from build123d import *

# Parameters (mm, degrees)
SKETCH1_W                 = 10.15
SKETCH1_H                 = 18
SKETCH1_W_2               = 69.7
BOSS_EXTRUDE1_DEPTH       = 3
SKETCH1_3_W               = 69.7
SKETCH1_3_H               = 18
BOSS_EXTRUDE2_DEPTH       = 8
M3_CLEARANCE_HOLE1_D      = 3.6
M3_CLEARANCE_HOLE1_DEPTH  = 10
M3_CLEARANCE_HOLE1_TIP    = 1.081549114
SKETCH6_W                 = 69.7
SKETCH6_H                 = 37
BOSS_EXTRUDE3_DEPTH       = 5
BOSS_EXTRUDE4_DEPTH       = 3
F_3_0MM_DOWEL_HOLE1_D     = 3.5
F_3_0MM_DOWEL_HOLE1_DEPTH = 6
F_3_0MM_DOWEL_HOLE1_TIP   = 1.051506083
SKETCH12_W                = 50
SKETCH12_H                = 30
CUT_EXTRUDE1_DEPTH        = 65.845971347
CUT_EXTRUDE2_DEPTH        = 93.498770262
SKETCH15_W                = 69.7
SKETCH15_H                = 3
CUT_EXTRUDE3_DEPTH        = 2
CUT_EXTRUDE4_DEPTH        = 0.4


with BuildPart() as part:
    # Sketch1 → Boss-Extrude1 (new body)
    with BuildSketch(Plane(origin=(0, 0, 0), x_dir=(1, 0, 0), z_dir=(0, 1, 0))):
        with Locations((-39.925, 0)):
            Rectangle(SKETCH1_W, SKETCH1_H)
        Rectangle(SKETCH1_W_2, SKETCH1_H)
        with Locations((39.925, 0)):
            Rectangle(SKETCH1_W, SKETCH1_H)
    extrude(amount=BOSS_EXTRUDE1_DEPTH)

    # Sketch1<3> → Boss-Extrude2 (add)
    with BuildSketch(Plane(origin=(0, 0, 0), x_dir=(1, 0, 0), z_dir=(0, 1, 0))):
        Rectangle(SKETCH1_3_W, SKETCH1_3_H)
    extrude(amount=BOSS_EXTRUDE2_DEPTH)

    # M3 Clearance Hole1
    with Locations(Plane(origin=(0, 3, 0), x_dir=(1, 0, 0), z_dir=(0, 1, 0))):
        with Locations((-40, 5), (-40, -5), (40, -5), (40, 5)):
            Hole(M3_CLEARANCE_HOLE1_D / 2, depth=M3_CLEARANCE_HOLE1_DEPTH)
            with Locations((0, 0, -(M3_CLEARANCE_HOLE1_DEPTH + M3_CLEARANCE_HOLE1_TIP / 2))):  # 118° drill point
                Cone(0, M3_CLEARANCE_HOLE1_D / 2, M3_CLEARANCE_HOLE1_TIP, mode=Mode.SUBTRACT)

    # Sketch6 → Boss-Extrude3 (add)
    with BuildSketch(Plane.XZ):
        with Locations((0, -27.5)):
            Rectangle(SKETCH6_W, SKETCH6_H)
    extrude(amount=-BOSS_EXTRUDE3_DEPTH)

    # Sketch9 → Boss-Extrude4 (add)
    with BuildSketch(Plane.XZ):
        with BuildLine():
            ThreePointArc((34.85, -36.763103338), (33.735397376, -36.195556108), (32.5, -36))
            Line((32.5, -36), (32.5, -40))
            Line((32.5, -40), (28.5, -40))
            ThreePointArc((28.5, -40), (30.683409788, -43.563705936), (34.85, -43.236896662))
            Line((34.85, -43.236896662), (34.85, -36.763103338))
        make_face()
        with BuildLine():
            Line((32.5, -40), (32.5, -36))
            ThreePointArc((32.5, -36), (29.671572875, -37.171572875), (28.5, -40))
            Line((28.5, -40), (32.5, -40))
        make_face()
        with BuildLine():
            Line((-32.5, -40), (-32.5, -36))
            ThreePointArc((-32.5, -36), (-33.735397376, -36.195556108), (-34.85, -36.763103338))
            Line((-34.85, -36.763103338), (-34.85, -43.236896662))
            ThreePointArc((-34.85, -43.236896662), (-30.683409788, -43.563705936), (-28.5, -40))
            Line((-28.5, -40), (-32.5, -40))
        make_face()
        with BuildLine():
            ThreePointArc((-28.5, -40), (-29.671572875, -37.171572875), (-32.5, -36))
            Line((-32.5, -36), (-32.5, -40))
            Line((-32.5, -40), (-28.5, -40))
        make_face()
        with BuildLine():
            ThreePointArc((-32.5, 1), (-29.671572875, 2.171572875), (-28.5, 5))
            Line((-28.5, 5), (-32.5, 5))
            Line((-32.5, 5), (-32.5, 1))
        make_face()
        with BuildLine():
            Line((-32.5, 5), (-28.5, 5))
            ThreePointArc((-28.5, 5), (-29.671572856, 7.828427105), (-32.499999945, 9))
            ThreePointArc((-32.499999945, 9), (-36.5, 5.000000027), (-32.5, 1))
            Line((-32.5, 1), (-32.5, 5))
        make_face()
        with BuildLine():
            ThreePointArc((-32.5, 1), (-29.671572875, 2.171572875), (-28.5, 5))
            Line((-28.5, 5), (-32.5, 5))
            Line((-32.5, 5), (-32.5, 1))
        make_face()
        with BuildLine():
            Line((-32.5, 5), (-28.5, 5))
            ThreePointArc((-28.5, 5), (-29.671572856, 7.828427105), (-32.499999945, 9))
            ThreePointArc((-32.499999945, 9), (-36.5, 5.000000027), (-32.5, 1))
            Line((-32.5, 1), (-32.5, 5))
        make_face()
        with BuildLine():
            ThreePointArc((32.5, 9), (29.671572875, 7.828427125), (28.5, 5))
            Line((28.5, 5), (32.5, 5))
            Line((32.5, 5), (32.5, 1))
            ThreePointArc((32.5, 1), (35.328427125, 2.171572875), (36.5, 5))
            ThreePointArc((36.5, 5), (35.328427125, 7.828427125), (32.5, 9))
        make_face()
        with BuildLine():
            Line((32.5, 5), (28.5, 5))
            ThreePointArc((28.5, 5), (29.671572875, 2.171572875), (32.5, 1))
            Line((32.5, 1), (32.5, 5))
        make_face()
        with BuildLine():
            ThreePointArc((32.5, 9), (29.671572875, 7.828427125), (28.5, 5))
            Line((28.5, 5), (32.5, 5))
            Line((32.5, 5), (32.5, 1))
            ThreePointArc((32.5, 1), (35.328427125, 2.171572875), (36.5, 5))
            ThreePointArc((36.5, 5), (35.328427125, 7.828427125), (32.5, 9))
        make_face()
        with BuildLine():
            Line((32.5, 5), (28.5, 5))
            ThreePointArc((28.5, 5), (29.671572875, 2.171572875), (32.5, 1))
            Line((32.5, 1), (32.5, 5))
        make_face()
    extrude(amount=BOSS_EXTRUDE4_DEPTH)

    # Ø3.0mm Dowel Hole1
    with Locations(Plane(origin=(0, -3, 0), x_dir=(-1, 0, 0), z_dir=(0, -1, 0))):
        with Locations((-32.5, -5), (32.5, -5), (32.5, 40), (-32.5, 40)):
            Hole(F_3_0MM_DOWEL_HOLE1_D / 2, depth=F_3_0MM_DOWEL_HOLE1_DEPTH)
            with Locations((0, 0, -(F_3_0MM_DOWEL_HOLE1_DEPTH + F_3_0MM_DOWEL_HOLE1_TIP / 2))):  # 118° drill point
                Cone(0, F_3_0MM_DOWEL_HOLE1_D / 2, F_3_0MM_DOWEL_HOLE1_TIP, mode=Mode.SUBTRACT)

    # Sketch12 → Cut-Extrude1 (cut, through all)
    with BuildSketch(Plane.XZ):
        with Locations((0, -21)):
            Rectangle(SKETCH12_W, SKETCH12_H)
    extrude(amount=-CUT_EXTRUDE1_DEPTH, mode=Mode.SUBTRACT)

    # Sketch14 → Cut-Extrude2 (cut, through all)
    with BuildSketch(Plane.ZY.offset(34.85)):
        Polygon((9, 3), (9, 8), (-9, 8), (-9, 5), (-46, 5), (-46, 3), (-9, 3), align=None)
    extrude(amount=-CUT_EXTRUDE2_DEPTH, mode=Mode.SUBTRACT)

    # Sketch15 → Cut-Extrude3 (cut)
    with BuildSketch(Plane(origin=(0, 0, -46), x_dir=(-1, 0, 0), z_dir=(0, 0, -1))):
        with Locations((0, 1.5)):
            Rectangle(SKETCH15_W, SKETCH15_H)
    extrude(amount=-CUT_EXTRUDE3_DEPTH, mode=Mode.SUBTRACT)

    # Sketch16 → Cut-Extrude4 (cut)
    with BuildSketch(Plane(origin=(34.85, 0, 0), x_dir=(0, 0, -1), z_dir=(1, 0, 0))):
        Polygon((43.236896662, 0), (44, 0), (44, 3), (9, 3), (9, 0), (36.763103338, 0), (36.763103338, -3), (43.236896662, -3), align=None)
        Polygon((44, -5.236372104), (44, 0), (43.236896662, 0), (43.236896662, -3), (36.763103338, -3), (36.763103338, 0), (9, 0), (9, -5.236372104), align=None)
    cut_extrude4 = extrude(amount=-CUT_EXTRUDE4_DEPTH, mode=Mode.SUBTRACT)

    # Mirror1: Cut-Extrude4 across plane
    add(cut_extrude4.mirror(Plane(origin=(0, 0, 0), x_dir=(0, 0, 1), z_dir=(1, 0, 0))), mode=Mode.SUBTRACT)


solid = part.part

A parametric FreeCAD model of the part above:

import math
import FreeCAD as App
import Part
import Sketcher
Q = App.Units.Quantity

doc = App.newDocument("Part")
body = doc.addObject("PartDesign::Body", "Body")

sketch1 = doc.addObject("Sketcher::SketchObject", "Sketch")
body.addObject(sketch1)
sketch1.AttachmentSupport = (doc.XZ_Plane, [""])
sketch1.MapMode = "FlatFace"
sketch1.addGeometry([
    Part.LineSegment(App.Vector(-45, -9, 0), App.Vector(-45, 9, 0)),
    Part.LineSegment(App.Vector(-45, 9, 0), App.Vector(45, 9, 0)),
    Part.LineSegment(App.Vector(45, 9, 0), App.Vector(45, -9, 0)),
    Part.LineSegment(App.Vector(45, -9, 0), App.Vector(-45, -9, 0)),
], False)
sketch1.addConstraint([
    Sketcher.Constraint("Coincident", 0, 2, 1, 1),
    Sketcher.Constraint("Coincident", 1, 2, 2, 1),
    Sketcher.Constraint("Coincident", 2, 2, 3, 1),
    Sketcher.Constraint("Coincident", 3, 2, 0, 1),
    Sketcher.Constraint("Vertical", 0),
    Sketcher.Constraint("Horizontal", 1),
    Sketcher.Constraint("Vertical", 2),
    Sketcher.Constraint("Horizontal", 3),
    Sketcher.Constraint("Symmetric", 0, 2, 2, 2, -1, 1),
    Sketcher.Constraint("DistanceX", 1, 1, 1, 2, Q("90 mm")),
    Sketcher.Constraint("DistanceY", 0, 1, 0, 2, Q("18 mm")),
])
pad1 = doc.addObject("PartDesign::Pad", "Pad")
body.addObject(pad1)
pad1.Profile = sketch1
pad1.Length = 3
pad1.Reversed = True

sketch2 = doc.addObject("Sketcher::SketchObject", "Sketch001")
body.addObject(sketch2)
sketch2.AttachmentSupport = (doc.XZ_Plane, [""])
sketch2.MapMode = "FlatFace"
sketch2.addGeometry([
    Part.LineSegment(App.Vector(-34.85, -9, 0), App.Vector(-34.85, 9, 0)),
    Part.LineSegment(App.Vector(-34.85, 9, 0), App.Vector(34.85, 9, 0)),
    Part.LineSegment(App.Vector(34.85, 9, 0), App.Vector(34.85, -9, 0)),
    Part.LineSegment(App.Vector(34.85, -9, 0), App.Vector(-34.85, -9, 0)),
], False)
sketch2.addConstraint([
    Sketcher.Constraint("Coincident", 0, 2, 1, 1),
    Sketcher.Constraint("Coincident", 1, 2, 2, 1),
    Sketcher.Constraint("Coincident", 2, 2, 3, 1),
    Sketcher.Constraint("Coincident", 3, 2, 0, 1),
    Sketcher.Constraint("Vertical", 0),
    Sketcher.Constraint("Horizontal", 1),
    Sketcher.Constraint("Vertical", 2),
    Sketcher.Constraint("Horizontal", 3),
    Sketcher.Constraint("Symmetric", 0, 2, 2, 2, -1, 1),
    Sketcher.Constraint("DistanceY", 0, 1, 0, 2, Q("18 mm")),
    Sketcher.Constraint("DistanceX", 1, 1, 1, 2, Q("69.7 mm")),
])
pad2 = doc.addObject("PartDesign::Pad", "Pad001")
body.addObject(pad2)
pad2.Profile = sketch2
pad2.Length = 8
pad2.Reversed = True

sketch3 = doc.addObject("Sketcher::SketchObject", "Sketch002")
body.addObject(sketch3)
sketch3.AttachmentSupport = (doc.XZ_Plane, [""])
sketch3.MapMode = "FlatFace"
sketch3.AttachmentOffset = App.Placement(App.Vector(0, 0, -3), App.Rotation())
sketch3.addGeometry([
    Part.Circle(App.Vector(-40, -5, 0), App.Vector(0, 0, 1), 1.8),
    Part.Circle(App.Vector(-40, 5, 0), App.Vector(0, 0, 1), 1.8),
    Part.Circle(App.Vector(40, 5, 0), App.Vector(0, 0, 1), 1.8),
    Part.Circle(App.Vector(40, -5, 0), App.Vector(0, 0, 1), 1.8),
], False)
sketch3.addConstraint([
    Sketcher.Constraint("Equal", 0, 1),
    Sketcher.Constraint("Equal", 1, 2),
    Sketcher.Constraint("Equal", 2, 3),
    Sketcher.Constraint("Symmetric", 0, 3, 2, 3, -1, 1),
    Sketcher.Constraint("Symmetric", 1, 3, 3, 3, -1, 1),
    Sketcher.Constraint("Symmetric", 1, 3, 2, 3, -2),
    Sketcher.Constraint("Diameter", 0, Q("3.6 mm")),
    Sketcher.Constraint("DistanceX", 0, 3, -1, 1, Q("40 mm")),
    Sketcher.Constraint("DistanceY", 0, 3, -1, 1, Q("5 mm")),
])
doc.recompute()
hole = doc.addObject("PartDesign::Hole", "Hole")
body.addObject(hole)
hole.Profile = sketch3
hole.ThreadType = "None"
hole.Diameter = 3.6
hole.DepthType = "Dimension"
hole.Depth = 10
hole.DrillPoint = "Angled"
hole.DrillPointAngle = 118
hole.Reversed = True

sketch4 = doc.addObject("Sketcher::SketchObject", "Sketch003")
body.addObject(sketch4)
sketch4.AttachmentSupport = (doc.XZ_Plane, [""])
sketch4.MapMode = "FlatFace"
sketch4.addGeometry([
    Part.LineSegment(App.Vector(-34.85, -9, 0), App.Vector(-34.85, -46, 0)),
    Part.LineSegment(App.Vector(-34.85, -46, 0), App.Vector(34.85, -46, 0)),
    Part.LineSegment(App.Vector(34.85, -46, 0), App.Vector(34.85, -9, 0)),
    Part.LineSegment(App.Vector(34.85, -9, 0), App.Vector(-34.85, -9, 0)),
], False)
sketch4.addConstraint([
    Sketcher.Constraint("Coincident", 0, 2, 1, 1),
    Sketcher.Constraint("Coincident", 1, 2, 2, 1),
    Sketcher.Constraint("Coincident", 2, 2, 3, 1),
    Sketcher.Constraint("Coincident", 3, 2, 0, 1),
    Sketcher.Constraint("Vertical", 0),
    Sketcher.Constraint("Horizontal", 1),
    Sketcher.Constraint("Vertical", 2),
    Sketcher.Constraint("Horizontal", 3),
    Sketcher.Constraint("DistanceY", 0, 2, 0, 1, Q("37 mm")),
    Sketcher.Constraint("DistanceX", 1, 1, 1, 2, Q("69.7 mm")),
    Sketcher.Constraint("DistanceY", 0, 2, -1, 1, Q("46 mm")),
    Sketcher.Constraint("DistanceX", 0, 2, -1, 1, Q("34.85 mm")),
])
pad3 = doc.addObject("PartDesign::Pad", "Pad002")
body.addObject(pad3)
pad3.Profile = sketch4
pad3.Length = 5
pad3.Reversed = True

sketch5 = doc.addObject("Sketcher::SketchObject", "Sketch004")
body.addObject(sketch5)
sketch5.AttachmentSupport = (doc.XZ_Plane, [""])
sketch5.MapMode = "FlatFace"
sketch5.addGeometry([
    Part.ArcOfCircle(Part.Circle(App.Vector(32.5, -40, 0), App.Vector(0, 0, 1), 4), math.radians(54.020199), math.radians(90)),
    Part.ArcOfCircle(Part.Circle(App.Vector(32.5, -40, 0), App.Vector(0, 0, 1), 4), math.radians(90), math.radians(180)),
    Part.ArcOfCircle(Part.Circle(App.Vector(32.5, -40, 0), App.Vector(0, 0, 1), 4), math.radians(-180), math.radians(-54.020199)),
    Part.LineSegment(App.Vector(34.85, -43.236897, 0), App.Vector(34.85, -36.763103, 0)),
    Part.ArcOfCircle(Part.Circle(App.Vector(-32.5, -40, 0), App.Vector(0, 0, 1), 4), math.radians(90), math.radians(125.979801)),
    Part.LineSegment(App.Vector(-34.85, -36.763103, 0), App.Vector(-34.85, -43.236897, 0)),
    Part.ArcOfCircle(Part.Circle(App.Vector(-32.5, -40, 0), App.Vector(0, 0, 1), 4), math.radians(-125.979801), math.radians(0)),
    Part.ArcOfCircle(Part.Circle(App.Vector(-32.5, -40, 0), App.Vector(0, 0, 1), 4), math.radians(0), math.radians(90)),
    Part.ArcOfCircle(Part.Circle(App.Vector(-32.5, 5, 0), App.Vector(0, 0, 1), 4), math.radians(-90), math.radians(0)),
    Part.ArcOfCircle(Part.Circle(App.Vector(-32.5, 5, 0), App.Vector(0, 0, 1), 4), math.radians(0), math.radians(89.999999)),
    Part.ArcOfCircle(Part.Circle(App.Vector(-32.5, 5, 0), App.Vector(0, 0, 1), 4), math.radians(89.999999), math.radians(270)),
    Part.ArcOfCircle(Part.Circle(App.Vector(32.5, 5, 0), App.Vector(0, 0, 1), 4), math.radians(-90), math.radians(0)),
    Part.ArcOfCircle(Part.Circle(App.Vector(32.5, 5, 0), App.Vector(0, 0, 1), 4), math.radians(0), math.radians(90)),
    Part.ArcOfCircle(Part.Circle(App.Vector(32.5, 5, 0), App.Vector(0, 0, 1), 4), math.radians(90), math.radians(180)),
    Part.ArcOfCircle(Part.Circle(App.Vector(32.5, 5, 0), App.Vector(0, 0, 1), 4), math.radians(180), math.radians(270)),
], False)
sketch5.addConstraint([
    Sketcher.Constraint("Tangent", 0, 2, 1, 1),
    Sketcher.Constraint("Tangent", 1, 2, 2, 1),
    Sketcher.Constraint("Coincident", 2, 2, 3, 1),
    Sketcher.Constraint("Coincident", 3, 2, 0, 1),
    Sketcher.Constraint("Coincident", 4, 2, 5, 1),
    Sketcher.Constraint("Coincident", 5, 2, 6, 1),
    Sketcher.Constraint("Tangent", 6, 2, 7, 1),
    Sketcher.Constraint("Tangent", 7, 2, 4, 1),
    Sketcher.Constraint("Tangent", 8, 2, 9, 1),
    Sketcher.Constraint("Tangent", 9, 2, 10, 1),
    Sketcher.Constraint("Tangent", 10, 2, 8, 1),
    Sketcher.Constraint("Tangent", 11, 2, 12, 1),
    Sketcher.Constraint("Tangent", 12, 2, 13, 1),
    Sketcher.Constraint("Tangent", 13, 2, 14, 1),
    Sketcher.Constraint("Tangent", 14, 2, 11, 1),
    Sketcher.Constraint("Vertical", 3),
    Sketcher.Constraint("Vertical", 5),
    Sketcher.Constraint("Coincident", 2, 3, 0, 3),
    Sketcher.Constraint("Coincident", 6, 3, 4, 3),
    Sketcher.Constraint("Equal", 2, 4),
    Sketcher.Constraint("Equal", 7, 8),
    Sketcher.Constraint("Equal", 10, 11),
    Sketcher.Constraint("Equal", 11, 12),
    Sketcher.Constraint("Symmetric", 0, 3, 4, 3, -2),
    Sketcher.Constraint("Symmetric", 8, 3, 11, 3, -2),
    Sketcher.Constraint("Horizontal", 7, 3, 1, 2),
    Sketcher.Constraint("Horizontal", 3, 2, 4, 2),
    Sketcher.Constraint("Horizontal", 1, 2, 6, 2),
    Sketcher.Constraint("Horizontal", 14, 3, 8, 2),
    Sketcher.Constraint("Horizontal", 8, 2, 11, 2),
    Sketcher.Constraint("Horizontal", 11, 2, 13, 2),
    Sketcher.Constraint("Vertical", 7, 3, 8, 3),
    Sketcher.Constraint("Vertical", 14, 3, 0, 2),
    Sketcher.Constraint("Vertical", 10, 3, 7, 2),
    Sketcher.Constraint("Vertical", 7, 2, 9, 2),
    Sketcher.Constraint("Vertical", 9, 2, 10, 2),
    Sketcher.Constraint("Vertical", 0, 2, 12, 2),
    Sketcher.Constraint("Vertical", 12, 2, 14, 2),
    Sketcher.Constraint("Radius", 0, Q("4 mm")),
    Sketcher.Constraint("DistanceY", 0, 3, -1, 1, Q("40 mm")),
    Sketcher.Constraint("DistanceY", -1, 1, 8, 3, Q("5 mm")),
    Sketcher.Constraint("DistanceX", 4, 3, 1, 3, Q("65 mm")),
    Sketcher.Constraint("DistanceX", -1, 1, 2, 2, Q("34.85 mm")),
])
pad4 = doc.addObject("PartDesign::Pad", "Pad003")
body.addObject(pad4)
pad4.Profile = sketch5
pad4.Length = 3

sketch6 = doc.addObject("Sketcher::SketchObject", "Sketch005")
body.addObject(sketch6)
sketch6.AttachmentSupport = (doc.XZ_Plane, [""])
sketch6.MapMode = "FlatFace"
sketch6.AttachmentOffset = App.Placement(App.Vector(0, 0, 3), App.Rotation())
sketch6.addGeometry([
    Part.Circle(App.Vector(32.5, 5, 0), App.Vector(0, 0, 1), 1.75),
    Part.Circle(App.Vector(-32.5, 5, 0), App.Vector(0, 0, 1), 1.75),
    Part.Circle(App.Vector(-32.5, -40, 0), App.Vector(0, 0, 1), 1.75),
    Part.Circle(App.Vector(32.5, -40, 0), App.Vector(0, 0, 1), 1.75),
], False)
sketch6.addConstraint([
    Sketcher.Constraint("Equal", 0, 1),
    Sketcher.Constraint("Equal", 1, 2),
    Sketcher.Constraint("Equal", 2, 3),
    Sketcher.Constraint("Symmetric", 0, 3, 1, 3, -2),
    Sketcher.Constraint("Symmetric", 2, 3, 3, 3, -2),
    Sketcher.Constraint("Vertical", 1, 3, 2, 3),
    Sketcher.Constraint("Diameter", 0, Q("3.5 mm")),
    Sketcher.Constraint("DistanceY", -1, 1, 0, 3, Q("5 mm")),
    Sketcher.Constraint("DistanceY", 2, 3, -1, 1, Q("40 mm")),
    Sketcher.Constraint("DistanceX", 1, 3, 0, 3, Q("65 mm")),
])
doc.recompute()
hole2 = doc.addObject("PartDesign::Hole", "Hole001")
body.addObject(hole2)
hole2.Profile = sketch6
hole2.ThreadType = "None"
hole2.Diameter = 3.5
hole2.DepthType = "Dimension"
hole2.Depth = 6
hole2.DrillPoint = "Angled"
hole2.DrillPointAngle = 118

sketch7 = doc.addObject("Sketcher::SketchObject", "Sketch006")
body.addObject(sketch7)
sketch7.AttachmentSupport = (doc.XZ_Plane, [""])
sketch7.MapMode = "FlatFace"
sketch7.addGeometry([
    Part.LineSegment(App.Vector(-25, -6, 0), App.Vector(-25, -36, 0)),
    Part.LineSegment(App.Vector(-25, -36, 0), App.Vector(25, -36, 0)),
    Part.LineSegment(App.Vector(25, -36, 0), App.Vector(25, -6, 0)),
    Part.LineSegment(App.Vector(25, -6, 0), App.Vector(-25, -6, 0)),
], False)
sketch7.addConstraint([
    Sketcher.Constraint("Coincident", 0, 2, 1, 1),
    Sketcher.Constraint("Coincident", 1, 2, 2, 1),
    Sketcher.Constraint("Coincident", 2, 2, 3, 1),
    Sketcher.Constraint("Coincident", 3, 2, 0, 1),
    Sketcher.Constraint("Vertical", 0),
    Sketcher.Constraint("Horizontal", 1),
    Sketcher.Constraint("Vertical", 2),
    Sketcher.Constraint("Horizontal", 3),
    Sketcher.Constraint("DistanceX", 1, 1, 1, 2, Q("50 mm")),
    Sketcher.Constraint("DistanceY", 0, 2, 0, 1, Q("30 mm")),
    Sketcher.Constraint("DistanceX", 0, 2, -1, 1, Q("25 mm")),
    Sketcher.Constraint("DistanceY", 0, 2, -1, 1, Q("36 mm")),
])
pocket1 = doc.addObject("PartDesign::Pocket", "Pocket")
body.addObject(pocket1)
pocket1.Profile = sketch7
pocket1.Type = "ThroughAll"

sketch8 = doc.addObject("Sketcher::SketchObject", "Sketch007")
body.addObject(sketch8)
sketch8.AttachmentSupport = (doc.YZ_Plane, [""])
sketch8.MapMode = "FlatFace"
sketch8.AttachmentOffset = App.Placement(App.Vector(0, 0, -34.85), App.Rotation())
sketch8.addGeometry([
    Part.LineSegment(App.Vector(3, 9, 0), App.Vector(8, 9, 0)),
    Part.LineSegment(App.Vector(8, 9, 0), App.Vector(8, -9, 0)),
    Part.LineSegment(App.Vector(8, -9, 0), App.Vector(5, -9, 0)),
    Part.LineSegment(App.Vector(5, -9, 0), App.Vector(5, -46, 0)),
    Part.LineSegment(App.Vector(5, -46, 0), App.Vector(3, -46, 0)),
    Part.LineSegment(App.Vector(3, -46, 0), App.Vector(3, 9, 0)),
], False)
sketch8.addConstraint([
    Sketcher.Constraint("Coincident", 0, 2, 1, 1),
    Sketcher.Constraint("Coincident", 1, 2, 2, 1),
    Sketcher.Constraint("Coincident", 2, 2, 3, 1),
    Sketcher.Constraint("Coincident", 3, 2, 4, 1),
    Sketcher.Constraint("Coincident", 4, 2, 5, 1),
    Sketcher.Constraint("Coincident", 5, 2, 0, 1),
    Sketcher.Constraint("Horizontal", 0),
    Sketcher.Constraint("Vertical", 1),
    Sketcher.Constraint("Horizontal", 2),
    Sketcher.Constraint("Vertical", 3),
    Sketcher.Constraint("Horizontal", 4),
    Sketcher.Constraint("Vertical", 5),
    Sketcher.Constraint("DistanceX", 0, 1, 0, 2, Q("5 mm")),
    Sketcher.Constraint("DistanceX", 2, 2, 2, 1, Q("3 mm")),
    Sketcher.Constraint("DistanceY", 1, 2, 1, 1, Q("18 mm")),
    Sketcher.Constraint("DistanceY", 3, 2, 3, 1, Q("37 mm")),
    Sketcher.Constraint("DistanceX", -1, 1, 0, 2, Q("8 mm")),
    Sketcher.Constraint("DistanceY", -1, 1, 0, 2, Q("9 mm")),
])
pocket2 = doc.addObject("PartDesign::Pocket", "Pocket001")
body.addObject(pocket2)
pocket2.Profile = sketch8
pocket2.Type = "ThroughAll"
pocket2.Reversed = True

sketch9 = doc.addObject("Sketcher::SketchObject", "Sketch008")
body.addObject(sketch9)
sketch9.AttachmentSupport = (doc.XY_Plane, [""])
sketch9.MapMode = "FlatFace"
sketch9.AttachmentOffset = App.Placement(App.Vector(0, 0, -46), App.Rotation())
sketch9.addGeometry([
    Part.LineSegment(App.Vector(34.85, 3, 0), App.Vector(34.85, 0, 0)),
    Part.LineSegment(App.Vector(34.85, 0, 0), App.Vector(-34.85, 0, 0)),
    Part.LineSegment(App.Vector(-34.85, 0, 0), App.Vector(-34.85, 3, 0)),
    Part.LineSegment(App.Vector(-34.85, 3, 0), App.Vector(34.85, 3, 0)),
], False)
sketch9.addConstraint([
    Sketcher.Constraint("Coincident", 0, 2, 1, 1),
    Sketcher.Constraint("Coincident", 1, 2, 2, 1),
    Sketcher.Constraint("Coincident", 2, 2, 3, 1),
    Sketcher.Constraint("Coincident", 3, 2, 0, 1),
    Sketcher.Constraint("Vertical", 0),
    Sketcher.Constraint("Horizontal", 1),
    Sketcher.Constraint("Vertical", 2),
    Sketcher.Constraint("Horizontal", 3),
    Sketcher.Constraint("Symmetric", 0, 2, 1, 2, -1, 1),
    Sketcher.Constraint("DistanceY", 0, 2, 0, 1, Q("3 mm")),
    Sketcher.Constraint("DistanceX", 1, 2, 1, 1, Q("69.7 mm")),
])
pocket3 = doc.addObject("PartDesign::Pocket", "Pocket002")
body.addObject(pocket3)
pocket3.Profile = sketch9
pocket3.Length = 2
pocket3.Reversed = True

sketch10 = doc.addObject("Sketcher::SketchObject", "Sketch009")
body.addObject(sketch10)
sketch10.AttachmentSupport = (doc.YZ_Plane, [""])
sketch10.MapMode = "FlatFace"
sketch10.AttachmentOffset = App.Placement(App.Vector(0, 0, 34.85), App.Rotation())
sketch10.addGeometry([
    Part.LineSegment(App.Vector(3, -44, 0), App.Vector(3, -9, 0)),
    Part.LineSegment(App.Vector(3, -9, 0), App.Vector(-5.236372, -9, 0)),
    Part.LineSegment(App.Vector(-5.236372, -9, 0), App.Vector(-5.236372, -44, 0)),
    Part.LineSegment(App.Vector(-5.236372, -44, 0), App.Vector(3, -44, 0)),
], False)
sketch10.addConstraint([
    Sketcher.Constraint("Coincident", 0, 2, 1, 1),
    Sketcher.Constraint("Coincident", 1, 2, 2, 1),
    Sketcher.Constraint("Coincident", 2, 2, 3, 1),
    Sketcher.Constraint("Coincident", 3, 2, 0, 1),
    Sketcher.Constraint("Vertical", 0),
    Sketcher.Constraint("Horizontal", 1),
    Sketcher.Constraint("Vertical", 2),
    Sketcher.Constraint("Horizontal", 3),
    Sketcher.Constraint("DistanceY", 0, 1, 0, 2, Q("35 mm")),
    Sketcher.Constraint("DistanceX", -1, 1, 0, 2, Q("3 mm")),
    Sketcher.Constraint("DistanceY", 0, 2, -1, 1, Q("9 mm")),
    Sketcher.Constraint("DistanceX", 1, 2, 1, 1, Q("8.236372 mm")),
])
pocket4 = doc.addObject("PartDesign::Pocket", "Pocket003")
body.addObject(pocket4)
pocket4.Profile = sketch10
pocket4.Length = 0.4
doc.recompute()

mirrored = doc.addObject("PartDesign::Mirrored", "Mirrored")
body.addObject(mirrored)
mirrored.Originals = [pocket4]
mirrored.MirrorPlane = (doc.YZ_Plane, [""])
body.Tip = mirrored

doc.recompute()
